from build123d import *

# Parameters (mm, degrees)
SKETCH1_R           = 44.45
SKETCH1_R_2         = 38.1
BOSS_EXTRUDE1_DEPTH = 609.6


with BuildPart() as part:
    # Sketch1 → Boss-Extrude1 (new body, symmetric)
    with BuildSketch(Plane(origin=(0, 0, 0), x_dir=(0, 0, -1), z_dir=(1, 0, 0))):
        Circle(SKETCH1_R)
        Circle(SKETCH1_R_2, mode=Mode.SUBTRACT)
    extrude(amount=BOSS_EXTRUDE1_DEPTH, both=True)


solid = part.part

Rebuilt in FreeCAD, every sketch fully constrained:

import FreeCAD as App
import Part
import Sketcher

V = App.Vector
Q = App.Units.Quantity

doc = App.newDocument("Part")
body = doc.addObject("PartDesign::Body", "Body")

# Sketch on YZ plane
sketch1 = doc.addObject("Sketcher::SketchObject", "Sketch")
body.addObject(sketch1)
sketch1.AttachmentSupport = (doc.YZ_Plane, [""])
sketch1.MapMode = "FlatFace"
sketch1.addGeometry(Part.Circle(V(0, 0, 0), V(0, 0, 1), 44), False)
sketch1.addGeometry(Part.Circle(V(0, 0, 0), V(0, 0, 1), 38), False)
sketch1.addConstraint(Sketcher.Constraint("Coincident", 0, 3, -1, 1))
sketch1.addConstraint(Sketcher.Constraint("Coincident", 1, 3, -1, 1))
sketch1.addConstraint(Sketcher.Constraint("Diameter", 1, Q("3 in")))
sketch1.addConstraint(Sketcher.Constraint("Diameter", 0, Q("3.5 in")))
pad1 = doc.addObject("PartDesign::Pad", "Pad")
body.addObject(pad1)
pad1.Profile = sketch1
pad1.Length = Q("48 in")
pad1.Midplane = True

doc.recompute()
